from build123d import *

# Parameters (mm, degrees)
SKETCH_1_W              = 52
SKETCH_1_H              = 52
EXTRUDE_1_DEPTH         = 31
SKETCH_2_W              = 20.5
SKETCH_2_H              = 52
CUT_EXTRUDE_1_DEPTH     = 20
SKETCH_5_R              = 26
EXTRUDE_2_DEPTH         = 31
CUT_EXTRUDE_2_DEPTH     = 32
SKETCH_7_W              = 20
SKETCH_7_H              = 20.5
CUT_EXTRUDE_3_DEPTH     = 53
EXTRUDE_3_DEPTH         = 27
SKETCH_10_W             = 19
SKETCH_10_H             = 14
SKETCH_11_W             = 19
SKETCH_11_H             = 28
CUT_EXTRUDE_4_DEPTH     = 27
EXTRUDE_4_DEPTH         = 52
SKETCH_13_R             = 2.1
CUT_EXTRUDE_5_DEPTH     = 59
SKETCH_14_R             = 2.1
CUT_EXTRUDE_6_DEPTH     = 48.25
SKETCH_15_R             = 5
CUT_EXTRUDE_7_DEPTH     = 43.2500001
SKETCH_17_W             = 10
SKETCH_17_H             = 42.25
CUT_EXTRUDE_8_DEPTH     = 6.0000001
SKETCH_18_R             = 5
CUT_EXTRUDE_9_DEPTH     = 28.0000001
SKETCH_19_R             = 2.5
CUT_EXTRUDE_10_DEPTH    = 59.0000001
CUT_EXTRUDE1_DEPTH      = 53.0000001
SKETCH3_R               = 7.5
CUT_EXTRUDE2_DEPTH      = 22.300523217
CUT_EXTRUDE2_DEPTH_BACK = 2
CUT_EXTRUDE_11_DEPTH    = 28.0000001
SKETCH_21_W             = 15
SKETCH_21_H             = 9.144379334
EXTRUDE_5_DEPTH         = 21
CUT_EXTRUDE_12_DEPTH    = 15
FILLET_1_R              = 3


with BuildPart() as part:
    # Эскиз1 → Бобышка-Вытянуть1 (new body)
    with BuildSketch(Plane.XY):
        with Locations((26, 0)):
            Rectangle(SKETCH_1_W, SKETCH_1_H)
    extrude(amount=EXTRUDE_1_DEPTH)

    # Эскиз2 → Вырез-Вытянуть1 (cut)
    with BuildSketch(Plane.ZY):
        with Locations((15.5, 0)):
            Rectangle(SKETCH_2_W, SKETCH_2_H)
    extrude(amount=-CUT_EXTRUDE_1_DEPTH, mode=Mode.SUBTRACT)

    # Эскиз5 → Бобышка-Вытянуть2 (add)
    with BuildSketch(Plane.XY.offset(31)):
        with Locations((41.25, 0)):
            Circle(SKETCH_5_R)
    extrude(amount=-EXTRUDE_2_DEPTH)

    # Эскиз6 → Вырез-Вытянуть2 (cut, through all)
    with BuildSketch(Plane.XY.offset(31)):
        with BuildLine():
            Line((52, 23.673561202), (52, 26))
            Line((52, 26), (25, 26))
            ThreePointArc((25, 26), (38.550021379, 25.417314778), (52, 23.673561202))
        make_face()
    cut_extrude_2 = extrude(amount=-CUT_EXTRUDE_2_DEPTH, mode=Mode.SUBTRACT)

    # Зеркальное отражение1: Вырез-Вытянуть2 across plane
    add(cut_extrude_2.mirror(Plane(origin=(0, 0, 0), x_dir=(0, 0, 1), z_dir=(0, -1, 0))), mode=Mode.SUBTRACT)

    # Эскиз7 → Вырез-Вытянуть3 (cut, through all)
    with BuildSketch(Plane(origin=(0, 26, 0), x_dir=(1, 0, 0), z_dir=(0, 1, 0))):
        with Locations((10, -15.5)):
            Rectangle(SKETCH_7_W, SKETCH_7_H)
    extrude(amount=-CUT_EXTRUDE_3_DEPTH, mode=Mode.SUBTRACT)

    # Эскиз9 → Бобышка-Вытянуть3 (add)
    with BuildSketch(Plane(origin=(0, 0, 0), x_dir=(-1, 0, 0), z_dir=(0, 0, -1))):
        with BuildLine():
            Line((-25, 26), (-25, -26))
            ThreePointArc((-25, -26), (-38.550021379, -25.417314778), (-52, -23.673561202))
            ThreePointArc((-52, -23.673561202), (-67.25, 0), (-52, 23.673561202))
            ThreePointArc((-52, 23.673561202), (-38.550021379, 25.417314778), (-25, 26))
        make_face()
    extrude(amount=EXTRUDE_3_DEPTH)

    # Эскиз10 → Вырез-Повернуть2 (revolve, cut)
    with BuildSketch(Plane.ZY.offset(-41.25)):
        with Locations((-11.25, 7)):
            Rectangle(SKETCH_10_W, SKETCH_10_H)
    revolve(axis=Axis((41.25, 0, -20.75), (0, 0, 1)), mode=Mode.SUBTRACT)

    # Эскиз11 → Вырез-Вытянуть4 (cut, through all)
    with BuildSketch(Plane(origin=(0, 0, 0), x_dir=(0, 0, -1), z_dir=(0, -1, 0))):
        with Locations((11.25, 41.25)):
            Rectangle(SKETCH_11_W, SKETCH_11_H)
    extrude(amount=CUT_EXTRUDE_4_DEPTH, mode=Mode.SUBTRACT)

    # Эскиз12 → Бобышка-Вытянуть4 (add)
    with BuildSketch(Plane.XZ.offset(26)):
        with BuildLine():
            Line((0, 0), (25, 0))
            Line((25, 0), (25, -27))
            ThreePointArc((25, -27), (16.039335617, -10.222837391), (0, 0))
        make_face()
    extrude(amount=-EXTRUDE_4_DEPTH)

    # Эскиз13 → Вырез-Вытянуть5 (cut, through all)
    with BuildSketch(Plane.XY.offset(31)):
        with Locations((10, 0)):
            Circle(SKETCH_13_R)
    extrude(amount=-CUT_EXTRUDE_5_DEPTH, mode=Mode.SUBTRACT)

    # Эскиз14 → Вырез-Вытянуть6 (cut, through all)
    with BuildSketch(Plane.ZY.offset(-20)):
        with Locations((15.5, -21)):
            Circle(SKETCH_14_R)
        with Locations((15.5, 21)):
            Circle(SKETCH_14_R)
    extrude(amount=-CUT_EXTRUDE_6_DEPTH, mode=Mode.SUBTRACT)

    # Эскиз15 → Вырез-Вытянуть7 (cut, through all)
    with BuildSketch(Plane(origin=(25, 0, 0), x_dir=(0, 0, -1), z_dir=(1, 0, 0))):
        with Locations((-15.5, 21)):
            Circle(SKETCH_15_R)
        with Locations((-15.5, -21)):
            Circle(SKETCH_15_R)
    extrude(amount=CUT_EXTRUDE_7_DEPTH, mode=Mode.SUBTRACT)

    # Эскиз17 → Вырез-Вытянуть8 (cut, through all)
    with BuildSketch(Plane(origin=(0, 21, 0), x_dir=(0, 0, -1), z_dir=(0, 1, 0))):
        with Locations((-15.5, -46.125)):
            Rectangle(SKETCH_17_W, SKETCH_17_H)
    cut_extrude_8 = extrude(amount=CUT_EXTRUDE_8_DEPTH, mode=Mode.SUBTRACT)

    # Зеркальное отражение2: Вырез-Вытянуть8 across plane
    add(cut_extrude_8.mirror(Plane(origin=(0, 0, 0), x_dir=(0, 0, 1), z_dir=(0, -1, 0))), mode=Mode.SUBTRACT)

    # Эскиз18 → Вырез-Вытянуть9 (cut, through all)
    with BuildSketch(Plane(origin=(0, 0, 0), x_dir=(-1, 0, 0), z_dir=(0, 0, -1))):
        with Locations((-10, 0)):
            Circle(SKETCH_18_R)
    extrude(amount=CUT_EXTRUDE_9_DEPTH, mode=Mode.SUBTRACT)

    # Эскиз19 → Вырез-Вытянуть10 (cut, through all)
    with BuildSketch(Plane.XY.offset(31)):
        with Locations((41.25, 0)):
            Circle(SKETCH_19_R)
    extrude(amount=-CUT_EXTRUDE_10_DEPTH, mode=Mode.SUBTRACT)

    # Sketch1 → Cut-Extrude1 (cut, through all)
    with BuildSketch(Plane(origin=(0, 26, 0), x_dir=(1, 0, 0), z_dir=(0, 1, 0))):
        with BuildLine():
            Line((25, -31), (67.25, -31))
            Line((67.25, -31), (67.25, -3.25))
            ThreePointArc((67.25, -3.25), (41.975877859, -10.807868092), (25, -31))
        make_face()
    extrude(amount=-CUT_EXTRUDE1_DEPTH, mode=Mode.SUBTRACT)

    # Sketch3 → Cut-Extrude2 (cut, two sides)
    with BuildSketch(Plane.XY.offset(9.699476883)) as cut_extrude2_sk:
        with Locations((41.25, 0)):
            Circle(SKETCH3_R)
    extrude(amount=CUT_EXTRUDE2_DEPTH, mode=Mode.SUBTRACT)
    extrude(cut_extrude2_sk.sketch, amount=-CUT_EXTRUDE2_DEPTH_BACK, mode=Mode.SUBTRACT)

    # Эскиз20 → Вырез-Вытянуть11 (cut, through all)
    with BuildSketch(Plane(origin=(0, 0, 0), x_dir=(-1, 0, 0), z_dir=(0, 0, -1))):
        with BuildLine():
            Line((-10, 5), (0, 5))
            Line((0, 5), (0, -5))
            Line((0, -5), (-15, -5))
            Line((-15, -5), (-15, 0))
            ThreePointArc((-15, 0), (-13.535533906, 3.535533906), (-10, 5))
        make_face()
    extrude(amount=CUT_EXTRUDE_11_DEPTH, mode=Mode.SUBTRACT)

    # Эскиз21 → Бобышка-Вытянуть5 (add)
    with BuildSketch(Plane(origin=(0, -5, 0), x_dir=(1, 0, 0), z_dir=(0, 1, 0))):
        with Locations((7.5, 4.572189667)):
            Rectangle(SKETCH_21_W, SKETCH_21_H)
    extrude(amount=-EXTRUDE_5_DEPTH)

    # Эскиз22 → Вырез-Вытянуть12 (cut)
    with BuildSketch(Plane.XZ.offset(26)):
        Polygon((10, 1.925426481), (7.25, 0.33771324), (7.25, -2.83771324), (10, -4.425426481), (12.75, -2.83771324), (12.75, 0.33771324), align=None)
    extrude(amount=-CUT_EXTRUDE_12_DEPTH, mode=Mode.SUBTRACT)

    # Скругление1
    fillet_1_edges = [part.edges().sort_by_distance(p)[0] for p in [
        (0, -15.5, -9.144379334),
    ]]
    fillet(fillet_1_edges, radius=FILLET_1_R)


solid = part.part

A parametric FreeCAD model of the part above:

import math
import FreeCAD as App
import Part
import Sketcher
Q = App.Units.Quantity


def edges_at(feature, points):
    """Names of the edges that pass closest to the given points."""
    edges = feature.Shape.Edges
    near = lambda p: min(range(len(edges)), key=lambda i: edges[i].distToShape(Part.Vertex(*p))[0])
    return sorted({f"Edge{near(p) + 1}" for p in points})

doc = App.newDocument("Part")
params = doc.addObject("Spreadsheet::Sheet", "Params")
for row, (alias, value) in enumerate([
    ("sketch1_width", "52 mm"),
    ("pad1_length", "31 mm"),
    ("sketch2_width", "52 mm"),
    ("sketch2_height", "20.5 mm"),
    ("pocket1_length", "20 mm"),
    ("sketch3_diameter", "52 mm"),
    ("pad2_length", "31 mm"),
    ("sketch4_width", "27 mm"),
    ("sketch5_width", "20 mm"),
    ("sketch5_height", "20.5 mm"),
    ("sketch6_radius", "26 mm"),
    ("sketch6_height", "52 mm"),
    ("pad3_length", "27 mm"),
    ("sketch7_width", "14 mm"),
    ("sketch7_height", "19 mm"),
    ("groove_angle", "360 deg"),
    ("sketch8_width", "28 mm"),
    ("sketch8_height", "19 mm"),
    ("sketch9_radius", "37.5 mm"),
    ("sketch9_width", "25 mm"),
    ("sketch9_height", "27 mm"),
    ("pad4_length", "52 mm"),
    ("sketch10_diameter", "4.2 mm"),
    ("sketch11_diameter", "4.2 mm"),
    ("sketch12_diameter", "10 mm"),
    ("sketch13_height", "10 mm"),
    ("sketch13_width", "42.25 mm"),
    ("sketch14_diameter", "10 mm"),
    ("sketch15_diameter", "5 mm"),
    ("sketch16_width", "42.25 mm"),
    ("sketch16_height", "27.75 mm"),
    ("sketch17_diameter", "15 mm"),
    ("pocket12_length", "22.300523 mm"),
    ("pocket12_length2", "2 mm"),
    ("sketch18_radius", "5 mm"),
    ("sketch19_width", "15 mm"),
    ("pad5_length", "21 mm"),
    ("pocket14_length", "15 mm"),
    ("fillet_radius", "3 mm"),
], start=1):
    params.set(f"A{row}", alias)
    params.set(f"B{row}", "=" + value)
    params.setAlias(f"B{row}", alias)

body = doc.addObject("PartDesign::Body", "Body")

# Sketch on XY plane
sketch1 = body.newObject("Sketcher::SketchObject", "Sketch")
sketch1.AttachmentSupport = (doc.getObject("XY_Plane"), [""])
sketch1.MapMode = "FlatFace"
sketch1.addGeometry(Part.LineSegment(App.Vector(0, 26, 0), App.Vector(0, -26, 0)), False)
sketch1.addGeometry(Part.LineSegment(App.Vector(0, -26, 0), App.Vector(52, -26, 0)), False)
sketch1.addGeometry(Part.LineSegment(App.Vector(52, -26, 0), App.Vector(52, 26, 0)), False)
sketch1.addGeometry(Part.LineSegment(App.Vector(52, 26, 0), App.Vector(0, 26, 0)), False)
sketch1.addConstraint(Sketcher.Constraint("Coincident", 0, 2, 1, 1))
sketch1.addConstraint(Sketcher.Constraint("Coincident", 1, 2, 2, 1))
sketch1.addConstraint(Sketcher.Constraint("Coincident", 2, 2, 3, 1))
sketch1.addConstraint(Sketcher.Constraint("Coincident", 3, 2, 0, 1))
sketch1.addConstraint(Sketcher.Constraint("Vertical", 0))
sketch1.addConstraint(Sketcher.Constraint("Horizontal", 1))
sketch1.addConstraint(Sketcher.Constraint("Vertical", 2))
sketch1.addConstraint(Sketcher.Constraint("Horizontal", 3))
sketch1.addConstraint(Sketcher.Constraint("Symmetric", 0, 2, 3, 2, -1, 1))
sketch1.addConstraint(Sketcher.Constraint("Equal", 3, 0))
sketch1.addConstraint(Sketcher.Constraint("DistanceX", 1, 1, 1, 2, 52.0))
sketch1.setExpression("Constraints[10]", "Params.sketch1_width")
pad1 = body.newObject("PartDesign::Pad", "Pad")
pad1.Profile = sketch1
pad1.setExpression("Length", "Params.pad1_length")

# Sketch on YZ plane
sketch2 = body.newObject("Sketcher::SketchObject", "Sketch001")
sketch2.AttachmentSupport = (doc.getObject("YZ_Plane"), [""])
sketch2.MapMode = "FlatFace"
sketch2.addGeometry(Part.LineSegment(App.Vector(26, 5.25, 0), App.Vector(-26, 5.25, 0)), False)
sketch2.addGeometry(Part.LineSegment(App.Vector(-26, 5.25, 0), App.Vector(-26, 25.75, 0)), False)
sketch2.addGeometry(Part.LineSegment(App.Vector(-26, 25.75, 0), App.Vector(26, 25.75, 0)), False)
sketch2.addGeometry(Part.LineSegment(App.Vector(26, 25.75, 0), App.Vector(26, 5.25, 0)), False)
sketch2.addConstraint(Sketcher.Constraint("Coincident", 0, 2, 1, 1))
sketch2.addConstraint(Sketcher.Constraint("Coincident", 1, 2, 2, 1))
sketch2.addConstraint(Sketcher.Constraint("Coincident", 2, 2, 3, 1))
sketch2.addConstraint(Sketcher.Constraint("Coincident", 3, 2, 0, 1))
sketch2.addConstraint(Sketcher.Constraint("Horizontal", 0))
sketch2.addConstraint(Sketcher.Constraint("Vertical", 1))
sketch2.addConstraint(Sketcher.Constraint("Horizontal", 2))
sketch2.addConstraint(Sketcher.Constraint("Vertical", 3))
sketch2.addConstraint(Sketcher.Constraint("DistanceX", 0, 2, 0, 1, 52.0))
sketch2.addConstraint(Sketcher.Constraint("DistanceY", 1, 1, 1, 2, 20.5))
sketch2.addConstraint(Sketcher.Constraint("DistanceX", 0, 2, -1, 1, 26.0))
sketch2.addConstraint(Sketcher.Constraint("DistanceY", -1, 1, 0, 2, 5.25))
sketch2.setExpression("Constraints[8]", "Params.sketch2_width")
sketch2.setExpression("Constraints[9]", "Params.sketch2_height")
pocket1 = body.newObject("PartDesign::Pocket", "Pocket")
pocket1.Profile = sketch2
pocket1.setExpression("Length", "Params.pocket1_length")
pocket1.Reversed = True

# Sketch on XY plane
sketch3 = body.newObject("Sketcher::SketchObject", "Sketch002")
sketch3.AttachmentSupport = (doc.getObject("XY_Plane"), [""])
sketch3.MapMode = "FlatFace"
sketch3.AttachmentOffset = App.Placement(App.Vector(0, 0, 31), App.Rotation())
sketch3.addGeometry(Part.Circle(App.Vector(41.25, 0, 0), App.Vector(0, 0, 1), 26), False)
sketch3.addConstraint(Sketcher.Constraint("PointOnObject", 0, 3, -1))
sketch3.addConstraint(Sketcher.Constraint("Diameter", 0, 52.0))
sketch3.addConstraint(Sketcher.Constraint("DistanceX", -1, 1, 0, 3, 41.25))
sketch3.setExpression("Constraints[1]", "Params.sketch3_diameter")
pad2 = body.newObject("PartDesign::Pad", "Pad001")
pad2.Profile = sketch3
pad2.setExpression("Length", "Params.pad2_length")
pad2.Reversed = True

# Sketch on XY plane
sketch4 = body.newObject("Sketcher::SketchObject", "Sketch003")
sketch4.AttachmentSupport = (doc.getObject("XY_Plane"), [""])
sketch4.MapMode = "FlatFace"
sketch4.AttachmentOffset = App.Placement(App.Vector(0, 0, 31), App.Rotation())
sketch4.addGeometry(Part.LineSegment(App.Vector(52, 23.673561, 0), App.Vector(52, 26, 0)), False)
sketch4.addGeometry(Part.LineSegment(App.Vector(52, 26, 0), App.Vector(25, 26, 0)), False)
sketch4.addGeometry(Part.ArcOfCircle(Part.Circle(App.Vector(25, -131.840455, 0), App.Vector(0, 0, 1), 157.840455), math.radians(80.150614), math.radians(90)), False)
sketch4.addConstraint(Sketcher.Constraint("Coincident", 0, 2, 1, 1))
sketch4.addConstraint(Sketcher.Constraint("Tangent", 1, 2, 2, 2))
sketch4.addConstraint(Sketcher.Constraint("Coincident", 2, 1, 0, 1))
sketch4.addConstraint(Sketcher.Constraint("Vertical", 0))
sketch4.addConstraint(Sketcher.Constraint("Horizontal", 1))
sketch4.addConstraint(Sketcher.Constraint("DistanceX", 1, 2, 1, 1, 27.0))
sketch4.addConstraint(Sketcher.Constraint("DistanceX", -1, 1, 2, 3, 25.0))
sketch4.addConstraint(Sketcher.Constraint("DistanceY", -1, 1, 0, 2, 26.0))
sketch4.addConstraint(Sketcher.Constraint("Radius", 2, 157.840455))
sketch4.setExpression("Constraints[5]", "Params.sketch4_width")
pocket2 = body.newObject("PartDesign::Pocket", "Pocket001")
pocket2.Profile = sketch4
pocket2.Type = "ThroughAll"
doc.recompute()

mirrored = body.newObject("PartDesign::Mirrored", "Mirrored")
mirrored.Originals = [pocket2]
mirrored.MirrorPlane = (doc.getObject("XZ_Plane"), [""])
body.Tip = mirrored

# Sketch on XZ plane
sketch5 = body.newObject("Sketcher::SketchObject", "Sketch004")
sketch5.AttachmentSupport = (doc.getObject("XZ_Plane"), [""])
sketch5.MapMode = "FlatFace"
sketch5.AttachmentOffset = App.Placement(App.Vector(0, 0, -26), App.Rotation())
sketch5.addGeometry(Part.LineSegment(App.Vector(0, 5.25, 0), App.Vector(0, 25.75, 0)), False)
sketch5.addGeometry(Part.LineSegment(App.Vector(0, 25.75, 0), App.Vector(20, 25.75, 0)), False)
sketch5.addGeometry(Part.LineSegment(App.Vector(20, 25.75, 0), App.Vector(20, 5.25, 0)), False)
sketch5.addGeometry(Part.LineSegment(App.Vector(20, 5.25, 0), App.Vector(0, 5.25, 0)), False)
sketch5.addConstraint(Sketcher.Constraint("Coincident", 0, 2, 1, 1))
sketch5.addConstraint(Sketcher.Constraint("Coincident", 1, 2, 2, 1))
sketch5.addConstraint(Sketcher.Constraint("Coincident", 2, 2, 3, 1))
sketch5.addConstraint(Sketcher.Constraint("Coincident", 3, 2, 0, 1))
sketch5.addConstraint(Sketcher.Constraint("Vertical", 0))
sketch5.addConstraint(Sketcher.Constraint("Horizontal", 1))
sketch5.addConstraint(Sketcher.Constraint("Vertical", 2))
sketch5.addConstraint(Sketcher.Constraint("Horizontal", 3))
sketch5.addConstraint(Sketcher.Constraint("PointOnObject", 0, 2, -2))
sketch5.addConstraint(Sketcher.Constraint("DistanceX", 1, 1, 1, 2, 20.0))
sketch5.addConstraint(Sketcher.Constraint("DistanceY", 0, 1, 0, 2, 20.5))
sketch5.addConstraint(Sketcher.Constraint("DistanceY", -1, 1, 0, 2, 25.75))
sketch5.setExpression("Constraints[9]", "Params.sketch5_width")
sketch5.setExpression("Constraints[10]", "Params.sketch5_height")
pocket3 = body.newObject("PartDesign::Pocket", "Pocket002")
pocket3.Profile = sketch5
pocket3.Type = "ThroughAll"
pocket3.Reversed = True

# Sketch on XY plane
sketch6 = body.newObject("Sketcher::SketchObject", "Sketch005")
sketch6.AttachmentSupport = (doc.getObject("XY_Plane"), [""])
sketch6.MapMode = "FlatFace"
sketch6.addGeometry(Part.LineSegment(App.Vector(25, -26, 0), App.Vector(25, 26, 0)), False)
sketch6.addGeometry(Part.ArcOfCircle(Part.Circle(App.Vector(25, -131.840455, 0), App.Vector(0, 0, 1), 157.840455), math.radians(80.150614), math.radians(90)), False)
sketch6.addGeometry(Part.ArcOfCircle(Part.Circle(App.Vector(41.25, 0, 0), App.Vector(0, 0, 1), 26), math.radians(-65.57753), math.radians(65.57753)), False)
sketch6.addGeometry(Part.ArcOfCircle(Part.Circle(App.Vector(25, 131.840455, 0), App.Vector(0, 0, 1), 157.840455), math.radians(-90), math.radians(-80.150614)), False)
sketch6.addConstraint(Sketcher.Constraint("Coincident", 0, 2, 1, 2))
sketch6.addConstraint(Sketcher.Constraint("Coincident", 1, 1, 2, 2))
sketch6.addConstraint(Sketcher.Constraint("Coincident", 2, 1, 3, 2))
sketch6.addConstraint(Sketcher.Constraint("Coincident", 3, 1, 0, 1))
sketch6.addConstraint(Sketcher.Constraint("Vertical", 0))
sketch6.addConstraint(Sketcher.Constraint("Equal", 1, 3))
sketch6.addConstraint(Sketcher.Constraint("Symmetric", 1, 3, 3, 3, -1))
sketch6.addConstraint(Sketcher.Constraint("PointOnObject", 2, 3, -1))
sketch6.addConstraint(Sketcher.Constraint("Vertical", 3, 3, 0, 2))
sketch6.addConstraint(Sketcher.Constraint("Radius", 2, 26.0))
sketch6.addConstraint(Sketcher.Constraint("DistanceY", 0, 1, 0, 2, 52.0))
sketch6.addConstraint(Sketcher.Constraint("DistanceX", -1, 1, 1, 3, 25.0))
sketch6.addConstraint(Sketcher.Constraint("DistanceX", -1, 1, 1, 1, 52.0))
sketch6.addConstraint(Sketcher.Constraint("DistanceX", -1, 1, 2, 3, 41.25))
sketch6.setExpression("Constraints[9]", "Params.sketch6_radius")
sketch6.setExpression("Constraints[10]", "Params.sketch6_height")
pad3 = body.newObject("PartDesign::Pad", "Pad002")
pad3.Profile = sketch6
pad3.setExpression("Length", "Params.pad3_length")
pad3.Reversed = True

# Sketch on YZ plane
sketch7 = body.newObject("Sketcher::SketchObject", "Sketch006")
sketch7.AttachmentSupport = (doc.getObject("YZ_Plane"), [""])
sketch7.MapMode = "FlatFace"
sketch7.AttachmentOffset = App.Placement(App.Vector(0, 0, 41.25), App.Rotation())
sketch7.addGeometry(Part.LineSegment(App.Vector(14, -20.75, 0), App.Vector(0, -20.75, 0)), False)
sketch7.addGeometry(Part.LineSegment(App.Vector(0, -20.75, 0), App.Vector(0, -1.75, 0)), False)
sketch7.addGeometry(Part.LineSegment(App.Vector(0, -1.75, 0), App.Vector(14, -1.75, 0)), False)
sketch7.addGeometry(Part.LineSegment(App.Vector(14, -1.75, 0), App.Vector(14, -20.75, 0)), False)
sketch7.addConstraint(Sketcher.Constraint("Coincident", 0, 2, 1, 1))
sketch7.addConstraint(Sketcher.Constraint("Coincident", 1, 2, 2, 1))
sketch7.addConstraint(Sketcher.Constraint("Coincident", 2, 2, 3, 1))
sketch7.addConstraint(Sketcher.Constraint("Coincident", 3, 2, 0, 1))
sketch7.addConstraint(Sketcher.Constraint("Horizontal", 0))
sketch7.addConstraint(Sketcher.Constraint("Vertical", 1))
sketch7.addConstraint(Sketcher.Constraint("Horizontal", 2))
sketch7.addConstraint(Sketcher.Constraint("Vertical", 3))
sketch7.addConstraint(Sketcher.Constraint("PointOnObject", 0, 2, -2))
sketch7.addConstraint(Sketcher.Constraint("DistanceX", 0, 2, 0, 1, 14.0))
sketch7.addConstraint(Sketcher.Constraint("DistanceY", 1, 1, 1, 2, 19.0))
sketch7.addConstraint(Sketcher.Constraint("DistanceY", 0, 2, -1, 1, 20.75))
sketch7.setExpression("Constraints[9]", "Params.sketch7_width")
sketch7.setExpression("Constraints[10]", "Params.sketch7_height")
groove = body.newObject("PartDesign::Groove", "Groove")
groove.Profile = sketch7
groove.ReferenceAxis = (sketch7, ["V_Axis"])
groove.setExpression("Angle", "Params.groove_angle")

# Sketch on XZ plane
sketch8 = body.newObject("Sketcher::SketchObject", "Sketch007")
sketch8.AttachmentSupport = (doc.getObject("XZ_Plane"), [""])
sketch8.MapMode = "FlatFace"
sketch8.addGeometry(Part.LineSegment(App.Vector(55.25, -1.75, 0), App.Vector(27.25, -1.75, 0)), False)
sketch8.addGeometry(Part.LineSegment(App.Vector(27.25, -1.75, 0), App.Vector(27.25, -20.75, 0)), False)
sketch8.addGeometry(Part.LineSegment(App.Vector(27.25, -20.75, 0), App.Vector(55.25, -20.75, 0)), False)
sketch8.addGeometry(Part.LineSegment(App.Vector(55.25, -20.75, 0), App.Vector(55.25, -1.75, 0)), False)
sketch8.addConstraint(Sketcher.Constraint("Coincident", 0, 2, 1, 1))
sketch8.addConstraint(Sketcher.Constraint("Coincident", 1, 2, 2, 1))
sketch8.addConstraint(Sketcher.Constraint("Coincident", 2, 2, 3, 1))
sketch8.addConstraint(Sketcher.Constraint("Coincident", 3, 2, 0, 1))
sketch8.addConstraint(Sketcher.Constraint("Horizontal", 0))
sketch8.addConstraint(Sketcher.Constraint("Vertical", 1))
sketch8.addConstraint(Sketcher.Constraint("Horizontal", 2))
sketch8.addConstraint(Sketcher.Constraint("Vertical", 3))
sketch8.addConstraint(Sketcher.Constraint("DistanceX", 0, 2, 0, 1, 28.0))
sketch8.addConstraint(Sketcher.Constraint("DistanceY", 1, 2, 1, 1, 19.0))
sketch8.addConstraint(Sketcher.Constraint("DistanceX", -1, 1, 0, 2, 27.25))
sketch8.addConstraint(Sketcher.Constraint("DistanceY", 0, 2, -1, 1, 1.75))
sketch8.setExpression("Constraints[8]", "Params.sketch8_width")
sketch8.setExpression("Constraints[9]", "Params.sketch8_height")
pocket4 = body.newObject("PartDesign::Pocket", "Pocket003")
pocket4.Profile = sketch8
pocket4.Type = "ThroughAll"
pocket4.Reversed = True

# Sketch on XZ plane
sketch9 = body.newObject("Sketcher::SketchObject", "Sketch008")
sketch9.AttachmentSupport = (doc.getObject("XZ_Plane"), [""])
sketch9.MapMode = "FlatFace"
sketch9.AttachmentOffset = App.Placement(App.Vector(0, 0, 26), App.Rotation())
sketch9.addGeometry(Part.LineSegment(App.Vector(25, 0, 0), App.Vector(0, 0, 0)), False)
sketch9.addGeometry(Part.ArcOfCircle(Part.Circle(App.Vector(-11.47669, -35.700639, 0), App.Vector(0, 0, 1), 37.5), math.radians(13.415852), math.radians(72.178952)), False)
sketch9.addGeometry(Part.LineSegment(App.Vector(25, -27, 0), App.Vector(25, 0, 0)), False)
sketch9.addConstraint(Sketcher.Constraint("Coincident", 0, 2, 1, 2))
sketch9.addConstraint(Sketcher.Constraint("Coincident", 1, 1, 2, 1))
sketch9.addConstraint(Sketcher.Constraint("Coincident", 2, 2, 0, 1))
sketch9.addConstraint(Sketcher.Constraint("Horizontal", 0))
sketch9.addConstraint(Sketcher.Constraint("Vertical", 2))
sketch9.addConstraint(Sketcher.Constraint("Coincident", 0, 2, -1, 1))
sketch9.addConstraint(Sketcher.Constraint("Radius", 1, 37.5))
sketch9.addConstraint(Sketcher.Constraint("DistanceX", 0, 2, 0, 1, 25.0))
sketch9.addConstraint(Sketcher.Constraint("DistanceY", 2, 1, 2, 2, 27.0))
sketch9.setExpression("Constraints[6]", "Params.sketch9_radius")
sketch9.setExpression("Constraints[7]", "Params.sketch9_width")
sketch9.setExpression("Constraints[8]", "Params.sketch9_height")
pad4 = body.newObject("PartDesign::Pad", "Pad003")
pad4.Profile = sketch9
pad4.setExpression("Length", "Params.pad4_length")
pad4.Reversed = True

# Sketch on XY plane
sketch10 = body.newObject("Sketcher::SketchObject", "Sketch009")
sketch10.AttachmentSupport = (doc.getObject("XY_Plane"), [""])
sketch10.MapMode = "FlatFace"
sketch10.AttachmentOffset = App.Placement(App.Vector(0, 0, 31), App.Rotation())
sketch10.addGeometry(Part.Circle(App.Vector(10, 0, 0), App.Vector(0, 0, 1), 2.1), False)
sketch10.addConstraint(Sketcher.Constraint("PointOnObject", 0, 3, -1))
sketch10.addConstraint(Sketcher.Constraint("Diameter", 0, 4.2))
sketch10.addConstraint(Sketcher.Constraint("DistanceX", -1, 1, 0, 3, 10.0))
sketch10.setExpression("Constraints[1]", "Params.sketch10_diameter")
pocket5 = body.newObject("PartDesign::Pocket", "Pocket004")
pocket5.Profile = sketch10
pocket5.Type = "ThroughAll"

# Sketch on YZ plane
sketch11 = body.newObject("Sketcher::SketchObject", "Sketch010")
sketch11.AttachmentSupport = (doc.getObject("YZ_Plane"), [""])
sketch11.MapMode = "FlatFace"
sketch11.AttachmentOffset = App.Placement(App.Vector(0, 0, 20), App.Rotation())
sketch11.addGeometry(Part.Circle(App.Vector(-21, 15.5, 0), App.Vector(0, 0, 1), 2.1), False)
sketch11.addGeometry(Part.Circle(App.Vector(21, 15.5, 0), App.Vector(0, 0, 1), 2.1), False)
sketch11.addConstraint(Sketcher.Constraint("Equal", 0, 1))
sketch11.addConstraint(Sketcher.Constraint("Symmetric", 0, 3, 1, 3, -2))
sketch11.addConstraint(Sketcher.Constraint("Diameter", 0, 4.2))
sketch11.addConstraint(Sketcher.Constraint("DistanceX", 0, 3, -1, 1, 21.0))
sketch11.addConstraint(Sketcher.Constraint("DistanceY", -1, 1, 0, 3, 15.5))
sketch11.setExpression("Constraints[2]", "Params.sketch11_diameter")
pocket6 = body.newObject("PartDesign::Pocket", "Pocket005")
pocket6.Profile = sketch11
pocket6.Type = "ThroughAll"
pocket6.Reversed = True

# Sketch on YZ plane
sketch12 = body.newObject("Sketcher::SketchObject", "Sketch011")
sketch12.AttachmentSupport = (doc.getObject("YZ_Plane"), [""])
sketch12.MapMode = "FlatFace"
sketch12.AttachmentOffset = App.Placement(App.Vector(0, 0, 25), App.Rotation())
sketch12.addGeometry(Part.Circle(App.Vector(21, 15.5, 0), App.Vector(0, 0, 1), 5), False)
sketch12.addGeometry(Part.Circle(App.Vector(-21, 15.5, 0), App.Vector(0, 0, 1), 5), False)
sketch12.addConstraint(Sketcher.Constraint("Equal", 0, 1))
sketch12.addConstraint(Sketcher.Constraint("Symmetric", 0, 3, 1, 3, -2))
sketch12.addConstraint(Sketcher.Constraint("Diameter", 0, 10.0))
sketch12.addConstraint(Sketcher.Constraint("DistanceX", -1, 1, 0, 3, 21.0))
sketch12.addConstraint(Sketcher.Constraint("DistanceY", -1, 1, 0, 3, 15.5))
sketch12.setExpression("Constraints[2]", "Params.sketch12_diameter")
pocket7 = body.newObject("PartDesign::Pocket", "Pocket006")
pocket7.Profile = sketch12
pocket7.Type = "ThroughAll"
pocket7.Reversed = True

# Sketch on XZ plane
sketch13 = body.newObject("Sketcher::SketchObject", "Sketch012")
sketch13.AttachmentSupport = (doc.getObject("XZ_Plane"), [""])
sketch13.MapMode = "FlatFace"
sketch13.AttachmentOffset = App.Placement(App.Vector(0, 0, -21), App.Rotation())
sketch13.addGeometry(Part.LineSegment(App.Vector(25, 20.5, 0), App.Vector(67.25, 20.5, 0)), False)
sketch13.addGeometry(Part.LineSegment(App.Vector(67.25, 20.5, 0), App.Vector(67.25, 10.5, 0)), False)
sketch13.addGeometry(Part.LineSegment(App.Vector(67.25, 10.5, 0), App.Vector(25, 10.5, 0)), False)
sketch13.addGeometry(Part.LineSegment(App.Vector(25, 10.5, 0), App.Vector(25, 20.5, 0)), False)
sketch13.addConstraint(Sketcher.Constraint("Coincident", 0, 2, 1, 1))
sketch13.addConstraint(Sketcher.Constraint("Coincident", 1, 2, 2, 1))
sketch13.addConstraint(Sketcher.Constraint("Coincident", 2, 2, 3, 1))
sketch13.addConstraint(Sketcher.Constraint("Coincident", 3, 2, 0, 1))
sketch13.addConstraint(Sketcher.Constraint("Horizontal", 0))
sketch13.addConstraint(Sketcher.Constraint("Vertical", 1))
sketch13.addConstraint(Sketcher.Constraint("Horizontal", 2))
sketch13.addConstraint(Sketcher.Constraint("Vertical", 3))
sketch13.addConstraint(Sketcher.Constraint("DistanceY", 1, 2, 1, 1, 10.0))
sketch13.addConstraint(Sketcher.Constraint("DistanceX", -1, 1, 2, 2, 25.0))
sketch13.addConstraint(Sketcher.Constraint("DistanceX", 0, 1, 0, 2, 42.25))
sketch13.addConstraint(Sketcher.Constraint("DistanceY", -1, 1, 0, 2, 20.5))
sketch13.setExpression("Constraints[8]", "Params.sketch13_height")
sketch13.setExpression("Constraints[10]", "Params.sketch13_width")
pocket8 = body.newObject("PartDesign::Pocket", "Pocket007")
pocket8.Profile = sketch13
pocket8.Type = "ThroughAll"
doc.recompute()

mirrored2 = body.newObject("PartDesign::Mirrored", "Mirrored001")
mirrored2.Originals = [pocket8]
mirrored2.MirrorPlane = (doc.getObject("XZ_Plane"), [""])
body.Tip = mirrored2

# Sketch on XY plane
sketch14 = body.newObject("Sketcher::SketchObject", "Sketch013")
sketch14.AttachmentSupport = (doc.getObject("XY_Plane"), [""])
sketch14.MapMode = "FlatFace"
sketch14.addGeometry(Part.Circle(App.Vector(10, 0, 0), App.Vector(0, 0, 1), 5), False)
sketch14.addConstraint(Sketcher.Constraint("PointOnObject", 0, 3, -1))
sketch14.addConstraint(Sketcher.Constraint("Diameter", 0, 10.0))
sketch14.addConstraint(Sketcher.Constraint("DistanceX", -1, 1, 0, 3, 10.0))
sketch14.setExpression("Constraints[1]", "Params.sketch14_diameter")
pocket9 = body.newObject("PartDesign::Pocket", "Pocket008")
pocket9.Profile = sketch14
pocket9.Type = "ThroughAll"

# Sketch on XY plane
sketch15 = body.newObject("Sketcher::SketchObject", "Sketch014")
sketch15.AttachmentSupport = (doc.getObject("XY_Plane"), [""])
sketch15.MapMode = "FlatFace"
sketch15.AttachmentOffset = App.Placement(App.Vector(0, 0, 31), App.Rotation())
sketch15.addGeometry(Part.Circle(App.Vector(41.25, 0, 0), App.Vector(0, 0, 1), 2.5), False)
sketch15.addConstraint(Sketcher.Constraint("PointOnObject", 0, 3, -1))
sketch15.addConstraint(Sketcher.Constraint("Diameter", 0, 5.0))
sketch15.addConstraint(Sketcher.Constraint("DistanceX", -1, 1, 0, 3, 41.25))
sketch15.setExpression("Constraints[1]", "Params.sketch15_diameter")
pocket10 = body.newObject("PartDesign::Pocket", "Pocket009")
pocket10.Profile = sketch15
pocket10.Type = "ThroughAll"

# Sketch on XZ plane
sketch16 = body.newObject("Sketcher::SketchObject", "Sketch015")
sketch16.AttachmentSupport = (doc.getObject("XZ_Plane"), [""])
sketch16.MapMode = "FlatFace"
sketch16.AttachmentOffset = App.Placement(App.Vector(0, 0, -26), App.Rotation())
sketch16.addGeometry(Part.LineSegment(App.Vector(25, 31, 0), App.Vector(67.25, 31, 0)), False)
sketch16.addGeometry(Part.LineSegment(App.Vector(67.25, 31, 0), App.Vector(67.25, 3.25, 0)), False)
sketch16.addGeometry(Part.ArcOfCircle(Part.Circle(App.Vector(67.25, 49.288288, 0), App.Vector(0, 0, 1), 46.038288), math.radians(-156.594197), math.radians(-90)), False)
sketch16.addConstraint(Sketcher.Constraint("Coincident", 0, 2, 1, 1))
sketch16.addConstraint(Sketcher.Constraint("Coincident", 1, 2, 2, 2))
sketch16.addConstraint(Sketcher.Constraint("Coincident", 2, 1, 0, 1))
sketch16.addConstraint(Sketcher.Constraint("Horizontal", 0))
sketch16.addConstraint(Sketcher.Constraint("Vertical", 1))
sketch16.addConstraint(Sketcher.Constraint("Vertical", 2, 3, 0, 2))
sketch16.addConstraint(Sketcher.Constraint("DistanceY", -1, 1, 0, 2, 31.0))
sketch16.addConstraint(Sketcher.Constraint("DistanceX", -1, 1, 2, 1, 25.0))
sketch16.addConstraint(Sketcher.Constraint("DistanceX", 0, 1, 0, 2, 42.25))
sketch16.addConstraint(Sketcher.Constraint("DistanceY", 1, 2, 1, 1, 27.75))
sketch16.setExpression("Constraints[8]", "Params.sketch16_width")
sketch16.setExpression("Constraints[9]", "Params.sketch16_height")
pocket11 = body.newObject("PartDesign::Pocket", "Pocket010")
pocket11.Profile = sketch16
pocket11.Type = "ThroughAll"
pocket11.Reversed = True

# Sketch on XY plane
sketch17 = body.newObject("Sketcher::SketchObject", "Sketch016")
sketch17.AttachmentSupport = (doc.getObject("XY_Plane"), [""])
sketch17.MapMode = "FlatFace"
sketch17.AttachmentOffset = App.Placement(App.Vector(0, 0, 9.699477), App.Rotation())
sketch17.addGeometry(Part.Circle(App.Vector(41.25, 0, 0), App.Vector(0, 0, 1), 7.5), False)
sketch17.addConstraint(Sketcher.Constraint("PointOnObject", 0, 3, -1))
sketch17.addConstraint(Sketcher.Constraint("Diameter", 0, 15.0))
sketch17.addConstraint(Sketcher.Constraint("DistanceX", -1, 1, 0, 3, 41.25))
sketch17.setExpression("Constraints[1]", "Params.sketch17_diameter")
pocket12 = body.newObject("PartDesign::Pocket", "Pocket011")
pocket12.Profile = sketch17
pocket12.Type = "TwoLengths"
pocket12.setExpression("Length", "Params.pocket12_length")
pocket12.setExpression("Length2", "Params.pocket12_length2")
pocket12.Reversed = True

# Sketch on XY plane
sketch18 = body.newObject("Sketcher::SketchObject", "Sketch017")
sketch18.AttachmentSupport = (doc.getObject("XY_Plane"), [""])
sketch18.MapMode = "FlatFace"
sketch18.addGeometry(Part.LineSegment(App.Vector(0, 5, 0), App.Vector(10, 5, 0)), False)
sketch18.addGeometry(Part.ArcOfCircle(Part.Circle(App.Vector(10, 0, 0), App.Vector(0, 0, 1), 5), math.radians(0), math.radians(90)), False)
sketch18.addGeometry(Part.LineSegment(App.Vector(15, 0, 0), App.Vector(15, -5, 0)), False)
sketch18.addGeometry(Part.LineSegment(App.Vector(15, -5, 0), App.Vector(0, -5, 0)), False)
sketch18.addGeometry(Part.LineSegment(App.Vector(0, -5, 0), App.Vector(0, 5, 0)), False)
sketch18.addConstraint(Sketcher.Constraint("Tangent", 0, 2, 1, 2))
sketch18.addConstraint(Sketcher.Constraint("Tangent", 1, 1, 2, 1))
sketch18.addConstraint(Sketcher.Constraint("Coincident", 2, 2, 3, 1))
sketch18.addConstraint(Sketcher.Constraint("Coincident", 3, 2, 4, 1))
sketch18.addConstraint(Sketcher.Constraint("Coincident", 4, 2, 0, 1))
sketch18.addConstraint(Sketcher.Constraint("Horizontal", 0))
sketch18.addConstraint(Sketcher.Constraint("Vertical", 2))
sketch18.addConstraint(Sketcher.Constraint("Horizontal", 3))
sketch18.addConstraint(Sketcher.Constraint("Vertical", 4))
sketch18.addConstraint(Sketcher.Constraint("Symmetric", 3, 2, 4, 2, -1, 1))
sketch18.addConstraint(Sketcher.Constraint("PointOnObject", 1, 3, -1))
sketch18.addConstraint(Sketcher.Constraint("Equal", 0, 4))
sketch18.addConstraint(Sketcher.Constraint("Radius", 1, 5.0))
sketch18.setExpression("Constraints[12]", "Params.sketch18_radius")
pocket13 = body.newObject("PartDesign::Pocket", "Pocket012")
pocket13.Profile = sketch18
pocket13.Type = "ThroughAll"

# Sketch on XZ plane
sketch19 = body.newObject("Sketcher::SketchObject", "Sketch018")
sketch19.AttachmentSupport = (doc.getObject("XZ_Plane"), [""])
sketch19.MapMode = "FlatFace"
sketch19.AttachmentOffset = App.Placement(App.Vector(0, 0, 5), App.Rotation())
sketch19.addGeometry(Part.LineSegment(App.Vector(0, -9.144379, 0), App.Vector(0, 0, 0)), False)
sketch19.addGeometry(Part.LineSegment(App.Vector(0, 0, 0), App.Vector(15, 0, 0)), False)
sketch19.addGeometry(Part.LineSegment(App.Vector(15, 0, 0), App.Vector(15, -9.144379, 0)), False)
sketch19.addGeometry(Part.LineSegment(App.Vector(15, -9.144379, 0), App.Vector(0, -9.144379, 0)), False)
sketch19.addConstraint(Sketcher.Constraint("Coincident", 0, 2, 1, 1))
sketch19.addConstraint(Sketcher.Constraint("Coincident", 1, 2, 2, 1))
sketch19.addConstraint(Sketcher.Constraint("Coincident", 2, 2, 3, 1))
sketch19.addConstraint(Sketcher.Constraint("Coincident", 3, 2, 0, 1))
sketch19.addConstraint(Sketcher.Constraint("Vertical", 0))
sketch19.addConstraint(Sketcher.Constraint("Horizontal", 1))
sketch19.addConstraint(Sketcher.Constraint("Vertical", 2))
sketch19.addConstraint(Sketcher.Constraint("Horizontal", 3))
sketch19.addConstraint(Sketcher.Constraint("Coincident", 0, 2, -1, 1))
sketch19.addConstraint(Sketcher.Constraint("DistanceX", 1, 1, 1, 2, 15.0))
sketch19.addConstraint(Sketcher.Constraint("DistanceY", 0, 1, 0, 2, 9.144379))
sketch19.setExpression("Constraints[9]", "Params.sketch19_width")
pad5 = body.newObject("PartDesign::Pad", "Pad004")
pad5.Profile = sketch19
pad5.setExpression("Length", "Params.pad5_length")

# Sketch on XZ plane
sketch20 = body.newObject("Sketcher::SketchObject", "Sketch019")
sketch20.AttachmentSupport = (doc.getObject("XZ_Plane"), [""])
sketch20.MapMode = "FlatFace"
sketch20.AttachmentOffset = App.Placement(App.Vector(0, 0, 26), App.Rotation())
sketch20.addGeometry(Part.LineSegment(App.Vector(10, 1.925426, 0), App.Vector(7.25, 0.337713, 0)), False)
sketch20.addGeometry(Part.LineSegment(App.Vector(7.25, 0.337713, 0), App.Vector(7.25, -2.837713, 0)), False)
sketch20.addGeometry(Part.LineSegment(App.Vector(7.25, -2.837713, 0), App.Vector(10, -4.425426, 0)), False)
sketch20.addGeometry(Part.LineSegment(App.Vector(10, -4.425426, 0), App.Vector(12.75, -2.837713, 0)), False)
sketch20.addGeometry(Part.LineSegment(App.Vector(12.75, -2.837713, 0), App.Vector(12.75, 0.337713, 0)), False)
sketch20.addGeometry(Part.LineSegment(App.Vector(12.75, 0.337713, 0), App.Vector(10, 1.925426, 0)), False)
sketch20.addConstraint(Sketcher.Constraint("Coincident", 0, 2, 1, 1))
sketch20.addConstraint(Sketcher.Constraint("Coincident", 1, 2, 2, 1))
sketch20.addConstraint(Sketcher.Constraint("Coincident", 2, 2, 3, 1))
sketch20.addConstraint(Sketcher.Constraint("Coincident", 3, 2, 4, 1))
sketch20.addConstraint(Sketcher.Constraint("Coincident", 4, 2, 5, 1))
sketch20.addConstraint(Sketcher.Constraint("Coincident", 5, 2, 0, 1))
sketch20.addConstraint(Sketcher.Constraint("Vertical", 1))
sketch20.addConstraint(Sketcher.Constraint("Vertical", 4))
sketch20.addConstraint(Sketcher.Constraint("Parallel", 0, 3))
sketch20.addConstraint(Sketcher.Constraint("Parallel", 2, 5))
sketch20.addConstraint(Sketcher.Constraint("Horizontal", 1, 2, 3, 2))
sketch20.addConstraint(Sketcher.Constraint("Horizontal", 0, 2, 4, 2))
sketch20.addConstraint(Sketcher.Constraint("Vertical", 2, 2, 5, 2))
sketch20.addConstraint(Sketcher.Constraint("Angle", 0, Q("-150 deg")))
sketch20.addConstraint(Sketcher.Constraint("DistanceX", -1, 1, 2, 2, 10.0))
sketch20.addConstraint(Sketcher.Constraint("DistanceX", 1, 2, 3, 2, 5.5))
sketch20.addConstraint(Sketcher.Constraint("DistanceY", 1, 2, 1, 1, 3.175426))
sketch20.addConstraint(Sketcher.Constraint("DistanceY", -1, 1, 0, 2, 0.337713))
pocket14 = body.newObject("PartDesign::Pocket", "Pocket013")
pocket14.Profile = sketch20
pocket14.setExpression("Length", "Params.pocket14_length")
doc.recompute()

fillet = body.newObject("PartDesign::Fillet", "Fillet")
fillet.Base = (pocket14, edges_at(pocket14, [(0, -15.5, -9.144)]))
fillet.setExpression("Radius", "Params.fillet_radius")

doc.recompute()
